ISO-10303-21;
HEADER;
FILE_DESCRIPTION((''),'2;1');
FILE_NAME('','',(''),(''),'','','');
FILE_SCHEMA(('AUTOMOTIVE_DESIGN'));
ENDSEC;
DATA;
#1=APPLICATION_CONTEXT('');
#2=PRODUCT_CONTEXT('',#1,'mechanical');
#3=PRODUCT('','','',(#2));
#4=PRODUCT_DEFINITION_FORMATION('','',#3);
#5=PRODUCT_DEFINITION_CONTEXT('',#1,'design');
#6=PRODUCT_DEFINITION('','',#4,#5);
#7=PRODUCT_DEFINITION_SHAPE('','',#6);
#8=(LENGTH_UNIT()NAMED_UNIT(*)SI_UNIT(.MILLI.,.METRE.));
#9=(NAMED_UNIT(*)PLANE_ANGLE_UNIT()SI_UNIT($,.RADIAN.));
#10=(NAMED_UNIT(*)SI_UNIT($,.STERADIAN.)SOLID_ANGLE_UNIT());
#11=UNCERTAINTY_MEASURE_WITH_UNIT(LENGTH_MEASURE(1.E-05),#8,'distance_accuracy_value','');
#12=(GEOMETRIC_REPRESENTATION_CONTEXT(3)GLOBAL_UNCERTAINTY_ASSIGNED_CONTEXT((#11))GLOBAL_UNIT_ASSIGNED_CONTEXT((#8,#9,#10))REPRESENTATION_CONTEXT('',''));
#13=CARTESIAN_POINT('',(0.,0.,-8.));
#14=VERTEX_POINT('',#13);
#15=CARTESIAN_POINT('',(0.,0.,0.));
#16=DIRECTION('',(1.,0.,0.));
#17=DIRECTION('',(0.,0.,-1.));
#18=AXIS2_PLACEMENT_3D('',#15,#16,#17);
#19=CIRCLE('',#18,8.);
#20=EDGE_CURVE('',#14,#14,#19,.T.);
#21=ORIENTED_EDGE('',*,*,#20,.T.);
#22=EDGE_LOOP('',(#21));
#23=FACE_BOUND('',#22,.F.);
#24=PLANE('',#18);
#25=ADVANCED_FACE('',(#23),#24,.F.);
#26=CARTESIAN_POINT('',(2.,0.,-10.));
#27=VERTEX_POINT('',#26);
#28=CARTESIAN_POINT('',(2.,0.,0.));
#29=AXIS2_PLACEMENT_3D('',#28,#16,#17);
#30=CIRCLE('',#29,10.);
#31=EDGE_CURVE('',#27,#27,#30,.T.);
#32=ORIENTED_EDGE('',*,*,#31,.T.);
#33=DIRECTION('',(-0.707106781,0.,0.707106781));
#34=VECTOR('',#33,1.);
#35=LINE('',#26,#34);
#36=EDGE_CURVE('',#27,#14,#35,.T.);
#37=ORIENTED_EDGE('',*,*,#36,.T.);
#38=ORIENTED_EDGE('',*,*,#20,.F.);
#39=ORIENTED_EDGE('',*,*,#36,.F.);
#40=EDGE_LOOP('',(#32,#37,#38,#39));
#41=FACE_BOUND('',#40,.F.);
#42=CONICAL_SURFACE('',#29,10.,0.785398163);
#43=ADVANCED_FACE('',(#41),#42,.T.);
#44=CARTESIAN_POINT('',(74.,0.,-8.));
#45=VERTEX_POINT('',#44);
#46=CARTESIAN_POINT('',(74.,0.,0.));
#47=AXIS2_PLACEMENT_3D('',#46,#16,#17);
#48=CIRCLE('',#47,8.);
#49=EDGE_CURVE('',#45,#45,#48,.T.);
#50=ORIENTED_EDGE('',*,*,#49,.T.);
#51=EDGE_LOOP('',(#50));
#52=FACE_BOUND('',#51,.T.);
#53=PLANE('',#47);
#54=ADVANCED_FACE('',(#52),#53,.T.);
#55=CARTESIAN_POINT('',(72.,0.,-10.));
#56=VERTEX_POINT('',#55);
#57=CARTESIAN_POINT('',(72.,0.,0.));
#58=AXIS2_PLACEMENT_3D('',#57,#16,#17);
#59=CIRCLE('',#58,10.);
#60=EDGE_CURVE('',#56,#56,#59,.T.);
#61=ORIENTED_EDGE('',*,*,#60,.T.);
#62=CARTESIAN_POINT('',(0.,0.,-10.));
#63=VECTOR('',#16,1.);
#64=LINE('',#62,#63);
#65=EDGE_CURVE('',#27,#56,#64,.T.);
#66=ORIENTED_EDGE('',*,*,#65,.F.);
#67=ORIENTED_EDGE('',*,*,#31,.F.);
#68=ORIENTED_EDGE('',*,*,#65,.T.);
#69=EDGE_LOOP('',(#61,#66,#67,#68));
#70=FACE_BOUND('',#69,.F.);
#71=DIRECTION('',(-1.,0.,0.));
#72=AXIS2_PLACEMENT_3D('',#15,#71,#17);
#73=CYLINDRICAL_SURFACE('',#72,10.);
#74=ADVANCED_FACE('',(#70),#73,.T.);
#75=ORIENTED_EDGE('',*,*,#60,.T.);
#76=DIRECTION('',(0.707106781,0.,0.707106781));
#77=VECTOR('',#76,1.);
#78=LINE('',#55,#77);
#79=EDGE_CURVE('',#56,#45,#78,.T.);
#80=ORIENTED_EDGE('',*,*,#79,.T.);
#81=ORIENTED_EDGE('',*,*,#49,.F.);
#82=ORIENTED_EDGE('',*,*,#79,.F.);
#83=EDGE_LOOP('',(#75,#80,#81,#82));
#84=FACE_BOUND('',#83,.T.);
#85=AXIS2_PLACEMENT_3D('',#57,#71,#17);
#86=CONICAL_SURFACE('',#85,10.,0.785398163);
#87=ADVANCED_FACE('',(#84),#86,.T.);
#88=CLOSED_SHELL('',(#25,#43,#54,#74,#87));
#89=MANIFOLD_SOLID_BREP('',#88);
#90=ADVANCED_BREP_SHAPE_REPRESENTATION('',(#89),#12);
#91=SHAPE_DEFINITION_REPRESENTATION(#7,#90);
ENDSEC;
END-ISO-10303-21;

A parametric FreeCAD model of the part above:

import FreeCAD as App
import Part
import Sketcher
Q = App.Units.Quantity


def edges_at(feature, points):
    """Names of the edges that pass closest to the given points."""
    edges = feature.Shape.Edges
    near = lambda p: min(range(len(edges)), key=lambda i: edges[i].distToShape(Part.Vertex(*p))[0])
    return sorted({f"Edge{near(p) + 1}" for p in points})

doc = App.newDocument("Part")
params = doc.addObject("Spreadsheet::Sheet", "Params")
for row, (alias, value) in enumerate([
    ("sketch1_diameter", "20 mm"),
    ("pad1_length", "74 mm"),
    ("chamfer_size", "2 mm"),
], start=1):
    params.set(f"A{row}", alias)
    params.set(f"B{row}", "=" + value)
    params.setAlias(f"B{row}", alias)

body = doc.addObject("PartDesign::Body", "Body")

sketch1 = doc.addObject("Sketcher::SketchObject", "Sketch")
body.addObject(sketch1)
sketch1.AttachmentSupport = (doc.YZ_Plane, [""])
sketch1.MapMode = "FlatFace"
sketch1.addGeometry(Part.Circle(App.Vector(0, 0, 0), App.Vector(0, 0, 1), 10), False)
sketch1.addConstraint([
    Sketcher.Constraint("Coincident", 0, 3, -1, 1),
    Sketcher.Constraint("Diameter", 0, Q("20 mm")),
])
sketch1.setExpression("Constraints[1]", "Params.sketch1_diameter")
pad1 = doc.addObject("PartDesign::Pad", "Pad")
body.addObject(pad1)
pad1.Profile = sketch1
pad1.setExpression("Length", "Params.pad1_length")
doc.recompute()

chamfer = doc.addObject("PartDesign::Chamfer", "Chamfer")
body.addObject(chamfer)
chamfer.Base = (pad1, edges_at(pad1, [(0, 0, 10), (74, 0, 10)]))
chamfer.setExpression("Size", "Params.chamfer_size")

doc.recompute()
